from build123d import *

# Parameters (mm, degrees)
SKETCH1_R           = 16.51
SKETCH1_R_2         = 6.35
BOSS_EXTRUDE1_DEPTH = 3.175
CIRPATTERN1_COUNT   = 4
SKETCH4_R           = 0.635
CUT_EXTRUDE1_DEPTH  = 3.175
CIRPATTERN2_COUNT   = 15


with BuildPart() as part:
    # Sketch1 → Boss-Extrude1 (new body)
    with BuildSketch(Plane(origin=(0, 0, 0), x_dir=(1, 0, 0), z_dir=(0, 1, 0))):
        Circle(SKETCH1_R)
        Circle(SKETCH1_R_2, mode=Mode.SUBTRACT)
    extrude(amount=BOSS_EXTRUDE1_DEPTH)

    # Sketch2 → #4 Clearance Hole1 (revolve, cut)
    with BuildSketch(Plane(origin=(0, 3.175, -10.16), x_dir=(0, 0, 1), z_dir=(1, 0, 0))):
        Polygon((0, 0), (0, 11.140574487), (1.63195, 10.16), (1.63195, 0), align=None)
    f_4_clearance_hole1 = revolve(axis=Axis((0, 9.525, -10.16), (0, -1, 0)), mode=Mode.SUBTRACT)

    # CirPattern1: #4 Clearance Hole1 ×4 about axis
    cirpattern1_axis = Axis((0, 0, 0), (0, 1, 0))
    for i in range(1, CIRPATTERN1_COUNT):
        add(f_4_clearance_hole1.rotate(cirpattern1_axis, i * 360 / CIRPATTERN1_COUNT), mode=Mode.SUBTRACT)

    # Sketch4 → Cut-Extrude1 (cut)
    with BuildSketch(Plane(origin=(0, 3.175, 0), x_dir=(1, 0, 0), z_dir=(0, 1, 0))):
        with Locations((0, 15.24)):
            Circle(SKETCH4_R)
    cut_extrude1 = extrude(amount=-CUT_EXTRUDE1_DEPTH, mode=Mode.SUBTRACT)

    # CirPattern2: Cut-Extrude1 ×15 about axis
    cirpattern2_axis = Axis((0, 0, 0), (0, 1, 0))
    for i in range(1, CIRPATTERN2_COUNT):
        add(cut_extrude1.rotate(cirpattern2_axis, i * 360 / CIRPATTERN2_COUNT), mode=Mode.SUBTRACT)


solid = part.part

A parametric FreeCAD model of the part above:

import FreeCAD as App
import Part
import Sketcher
from FreeCAD import Vector
Q = App.Units.Quantity

doc = App.newDocument("Part")
body = doc.addObject("PartDesign::Body", "Body")

sketch1 = body.newObject("Sketcher::SketchObject", "Sketch")
sketch1.AttachmentSupport = (doc.getObject("XZ_Plane"), [""])
sketch1.MapMode = "FlatFace"
sketch1.addGeometry(Part.Circle(Vector(0, 0, 0), Vector(0, 0, 1), 17), False)
sketch1.addGeometry(Part.Circle(Vector(0, 0, 0), Vector(0, 0, 1), 6), False)
sketch1.addConstraint(Sketcher.Constraint("Coincident", 0, 3, -1, 1))
sketch1.addConstraint(Sketcher.Constraint("Coincident", 1, 3, -1, 1))
sketch1.addConstraint(Sketcher.Constraint("Diameter", 0, Q("1.3 in")))
sketch1.addConstraint(Sketcher.Constraint("Diameter", 1, Q("0.5 in")))
pad1 = body.newObject("PartDesign::Pad", "Pad")
pad1.Profile = sketch1
pad1.Length = Q("0.125 in")
pad1.Reversed = True

sketch2 = body.newObject("Sketcher::SketchObject", "Sketch001")
sketch2.AttachmentSupport = (doc.getObject("YZ_Plane"), [""])
sketch2.MapMode = "FlatFace"
sketch2.addGeometry(Part.LineSegment(Vector(-8, -10.2, 0), Vector(3.2, -10.2, 0)), False)
sketch2.addGeometry(Part.LineSegment(Vector(3.2, -10.2, 0), Vector(3.2, -8.5, 0)), False)
sketch2.addGeometry(Part.LineSegment(Vector(3.2, -8.5, 0), Vector(-7, -8.5, 0)), False)
sketch2.addGeometry(Part.LineSegment(Vector(-7, -8.5, 0), Vector(-8, -10.2, 0)), False)
sketch2.addGeometry(Part.LineSegment(Vector(3.2, -10.2, 0), Vector(-8, -10.2, 0)), True)
sketch2.addConstraint(Sketcher.Constraint("Coincident", 0, 2, 1, 1))
sketch2.addConstraint(Sketcher.Constraint("Coincident", 1, 2, 2, 1))
sketch2.addConstraint(Sketcher.Constraint("Coincident", 2, 2, 3, 1))
sketch2.addConstraint(Sketcher.Constraint("Coincident", 3, 2, 0, 1))
sketch2.addConstraint(Sketcher.Constraint("Horizontal", 0))
sketch2.addConstraint(Sketcher.Constraint("Vertical", 1))
sketch2.addConstraint(Sketcher.Constraint("Horizontal", 2))
sketch2.addConstraint(Sketcher.Constraint("Horizontal", 4))
sketch2.addConstraint(Sketcher.Constraint("Coincident", 4, 1, 0, 2))
sketch2.addConstraint(Sketcher.Constraint("Equal", 0, 4))
sketch2.addConstraint(Sketcher.Constraint("DistanceX", 2, 2, 2, 1, Q("0.4 in")))
sketch2.addConstraint(Sketcher.Constraint("Angle", 3, Q("-121 deg")))
sketch2.addConstraint(Sketcher.Constraint("DistanceY", 0, 2, -1, 1, Q("0.4 in")))
sketch2.addConstraint(Sketcher.Constraint("DistanceX", -1, 1, 0, 2, Q("0.125 in")))
sketch2.addConstraint(Sketcher.Constraint("DistanceY", 1, 1, 1, 2, Q("1.63195 mm")))
groove = body.newObject("PartDesign::Groove", "Groove")
groove.Profile = sketch2
groove.ReferenceAxis = (sketch2, ["Axis0"])
groove.Angle = 360
doc.recompute()

polarpattern = body.newObject("PartDesign::PolarPattern", "PolarPattern")
polarpattern.Originals = [groove]
polarpattern.Axis = (doc.getObject("Y_Axis"), [""])
polarpattern.Angle = 360
polarpattern.Occurrences = 4
body.Tip = polarpattern

sketch3 = body.newObject("Sketcher::SketchObject", "Sketch002")
sketch3.AttachmentSupport = (doc.getObject("XZ_Plane"), [""])
sketch3.MapMode = "FlatFace"
sketch3.AttachmentOffset = App.Placement(Vector(0, 0, -0.125 * 25.4), App.Rotation())
sketch3.addGeometry(Part.Circle(Vector(0, -15.2, 0), Vector(0, 0, 1), 0.6), False)
sketch3.addConstraint(Sketcher.Constraint("PointOnObject", 0, 3, -2))
sketch3.addConstraint(Sketcher.Constraint("Diameter", 0, Q("0.05 in")))
sketch3.addConstraint(Sketcher.Constraint("DistanceY", 0, 3, -1, 1, Q("0.6 in")))
pocket1 = body.newObject("PartDesign::Pocket", "Pocket")
pocket1.Profile = sketch3
pocket1.Length = Q("0.125 in")
pocket1.Reversed = True
doc.recompute()

polarpattern2 = body.newObject("PartDesign::PolarPattern", "PolarPattern001")
polarpattern2.Originals = [pocket1]
polarpattern2.Axis = (doc.getObject("Y_Axis"), [""])
polarpattern2.Angle = 360
polarpattern2.Occurrences = 15
body.Tip = polarpattern2

doc.recompute()
